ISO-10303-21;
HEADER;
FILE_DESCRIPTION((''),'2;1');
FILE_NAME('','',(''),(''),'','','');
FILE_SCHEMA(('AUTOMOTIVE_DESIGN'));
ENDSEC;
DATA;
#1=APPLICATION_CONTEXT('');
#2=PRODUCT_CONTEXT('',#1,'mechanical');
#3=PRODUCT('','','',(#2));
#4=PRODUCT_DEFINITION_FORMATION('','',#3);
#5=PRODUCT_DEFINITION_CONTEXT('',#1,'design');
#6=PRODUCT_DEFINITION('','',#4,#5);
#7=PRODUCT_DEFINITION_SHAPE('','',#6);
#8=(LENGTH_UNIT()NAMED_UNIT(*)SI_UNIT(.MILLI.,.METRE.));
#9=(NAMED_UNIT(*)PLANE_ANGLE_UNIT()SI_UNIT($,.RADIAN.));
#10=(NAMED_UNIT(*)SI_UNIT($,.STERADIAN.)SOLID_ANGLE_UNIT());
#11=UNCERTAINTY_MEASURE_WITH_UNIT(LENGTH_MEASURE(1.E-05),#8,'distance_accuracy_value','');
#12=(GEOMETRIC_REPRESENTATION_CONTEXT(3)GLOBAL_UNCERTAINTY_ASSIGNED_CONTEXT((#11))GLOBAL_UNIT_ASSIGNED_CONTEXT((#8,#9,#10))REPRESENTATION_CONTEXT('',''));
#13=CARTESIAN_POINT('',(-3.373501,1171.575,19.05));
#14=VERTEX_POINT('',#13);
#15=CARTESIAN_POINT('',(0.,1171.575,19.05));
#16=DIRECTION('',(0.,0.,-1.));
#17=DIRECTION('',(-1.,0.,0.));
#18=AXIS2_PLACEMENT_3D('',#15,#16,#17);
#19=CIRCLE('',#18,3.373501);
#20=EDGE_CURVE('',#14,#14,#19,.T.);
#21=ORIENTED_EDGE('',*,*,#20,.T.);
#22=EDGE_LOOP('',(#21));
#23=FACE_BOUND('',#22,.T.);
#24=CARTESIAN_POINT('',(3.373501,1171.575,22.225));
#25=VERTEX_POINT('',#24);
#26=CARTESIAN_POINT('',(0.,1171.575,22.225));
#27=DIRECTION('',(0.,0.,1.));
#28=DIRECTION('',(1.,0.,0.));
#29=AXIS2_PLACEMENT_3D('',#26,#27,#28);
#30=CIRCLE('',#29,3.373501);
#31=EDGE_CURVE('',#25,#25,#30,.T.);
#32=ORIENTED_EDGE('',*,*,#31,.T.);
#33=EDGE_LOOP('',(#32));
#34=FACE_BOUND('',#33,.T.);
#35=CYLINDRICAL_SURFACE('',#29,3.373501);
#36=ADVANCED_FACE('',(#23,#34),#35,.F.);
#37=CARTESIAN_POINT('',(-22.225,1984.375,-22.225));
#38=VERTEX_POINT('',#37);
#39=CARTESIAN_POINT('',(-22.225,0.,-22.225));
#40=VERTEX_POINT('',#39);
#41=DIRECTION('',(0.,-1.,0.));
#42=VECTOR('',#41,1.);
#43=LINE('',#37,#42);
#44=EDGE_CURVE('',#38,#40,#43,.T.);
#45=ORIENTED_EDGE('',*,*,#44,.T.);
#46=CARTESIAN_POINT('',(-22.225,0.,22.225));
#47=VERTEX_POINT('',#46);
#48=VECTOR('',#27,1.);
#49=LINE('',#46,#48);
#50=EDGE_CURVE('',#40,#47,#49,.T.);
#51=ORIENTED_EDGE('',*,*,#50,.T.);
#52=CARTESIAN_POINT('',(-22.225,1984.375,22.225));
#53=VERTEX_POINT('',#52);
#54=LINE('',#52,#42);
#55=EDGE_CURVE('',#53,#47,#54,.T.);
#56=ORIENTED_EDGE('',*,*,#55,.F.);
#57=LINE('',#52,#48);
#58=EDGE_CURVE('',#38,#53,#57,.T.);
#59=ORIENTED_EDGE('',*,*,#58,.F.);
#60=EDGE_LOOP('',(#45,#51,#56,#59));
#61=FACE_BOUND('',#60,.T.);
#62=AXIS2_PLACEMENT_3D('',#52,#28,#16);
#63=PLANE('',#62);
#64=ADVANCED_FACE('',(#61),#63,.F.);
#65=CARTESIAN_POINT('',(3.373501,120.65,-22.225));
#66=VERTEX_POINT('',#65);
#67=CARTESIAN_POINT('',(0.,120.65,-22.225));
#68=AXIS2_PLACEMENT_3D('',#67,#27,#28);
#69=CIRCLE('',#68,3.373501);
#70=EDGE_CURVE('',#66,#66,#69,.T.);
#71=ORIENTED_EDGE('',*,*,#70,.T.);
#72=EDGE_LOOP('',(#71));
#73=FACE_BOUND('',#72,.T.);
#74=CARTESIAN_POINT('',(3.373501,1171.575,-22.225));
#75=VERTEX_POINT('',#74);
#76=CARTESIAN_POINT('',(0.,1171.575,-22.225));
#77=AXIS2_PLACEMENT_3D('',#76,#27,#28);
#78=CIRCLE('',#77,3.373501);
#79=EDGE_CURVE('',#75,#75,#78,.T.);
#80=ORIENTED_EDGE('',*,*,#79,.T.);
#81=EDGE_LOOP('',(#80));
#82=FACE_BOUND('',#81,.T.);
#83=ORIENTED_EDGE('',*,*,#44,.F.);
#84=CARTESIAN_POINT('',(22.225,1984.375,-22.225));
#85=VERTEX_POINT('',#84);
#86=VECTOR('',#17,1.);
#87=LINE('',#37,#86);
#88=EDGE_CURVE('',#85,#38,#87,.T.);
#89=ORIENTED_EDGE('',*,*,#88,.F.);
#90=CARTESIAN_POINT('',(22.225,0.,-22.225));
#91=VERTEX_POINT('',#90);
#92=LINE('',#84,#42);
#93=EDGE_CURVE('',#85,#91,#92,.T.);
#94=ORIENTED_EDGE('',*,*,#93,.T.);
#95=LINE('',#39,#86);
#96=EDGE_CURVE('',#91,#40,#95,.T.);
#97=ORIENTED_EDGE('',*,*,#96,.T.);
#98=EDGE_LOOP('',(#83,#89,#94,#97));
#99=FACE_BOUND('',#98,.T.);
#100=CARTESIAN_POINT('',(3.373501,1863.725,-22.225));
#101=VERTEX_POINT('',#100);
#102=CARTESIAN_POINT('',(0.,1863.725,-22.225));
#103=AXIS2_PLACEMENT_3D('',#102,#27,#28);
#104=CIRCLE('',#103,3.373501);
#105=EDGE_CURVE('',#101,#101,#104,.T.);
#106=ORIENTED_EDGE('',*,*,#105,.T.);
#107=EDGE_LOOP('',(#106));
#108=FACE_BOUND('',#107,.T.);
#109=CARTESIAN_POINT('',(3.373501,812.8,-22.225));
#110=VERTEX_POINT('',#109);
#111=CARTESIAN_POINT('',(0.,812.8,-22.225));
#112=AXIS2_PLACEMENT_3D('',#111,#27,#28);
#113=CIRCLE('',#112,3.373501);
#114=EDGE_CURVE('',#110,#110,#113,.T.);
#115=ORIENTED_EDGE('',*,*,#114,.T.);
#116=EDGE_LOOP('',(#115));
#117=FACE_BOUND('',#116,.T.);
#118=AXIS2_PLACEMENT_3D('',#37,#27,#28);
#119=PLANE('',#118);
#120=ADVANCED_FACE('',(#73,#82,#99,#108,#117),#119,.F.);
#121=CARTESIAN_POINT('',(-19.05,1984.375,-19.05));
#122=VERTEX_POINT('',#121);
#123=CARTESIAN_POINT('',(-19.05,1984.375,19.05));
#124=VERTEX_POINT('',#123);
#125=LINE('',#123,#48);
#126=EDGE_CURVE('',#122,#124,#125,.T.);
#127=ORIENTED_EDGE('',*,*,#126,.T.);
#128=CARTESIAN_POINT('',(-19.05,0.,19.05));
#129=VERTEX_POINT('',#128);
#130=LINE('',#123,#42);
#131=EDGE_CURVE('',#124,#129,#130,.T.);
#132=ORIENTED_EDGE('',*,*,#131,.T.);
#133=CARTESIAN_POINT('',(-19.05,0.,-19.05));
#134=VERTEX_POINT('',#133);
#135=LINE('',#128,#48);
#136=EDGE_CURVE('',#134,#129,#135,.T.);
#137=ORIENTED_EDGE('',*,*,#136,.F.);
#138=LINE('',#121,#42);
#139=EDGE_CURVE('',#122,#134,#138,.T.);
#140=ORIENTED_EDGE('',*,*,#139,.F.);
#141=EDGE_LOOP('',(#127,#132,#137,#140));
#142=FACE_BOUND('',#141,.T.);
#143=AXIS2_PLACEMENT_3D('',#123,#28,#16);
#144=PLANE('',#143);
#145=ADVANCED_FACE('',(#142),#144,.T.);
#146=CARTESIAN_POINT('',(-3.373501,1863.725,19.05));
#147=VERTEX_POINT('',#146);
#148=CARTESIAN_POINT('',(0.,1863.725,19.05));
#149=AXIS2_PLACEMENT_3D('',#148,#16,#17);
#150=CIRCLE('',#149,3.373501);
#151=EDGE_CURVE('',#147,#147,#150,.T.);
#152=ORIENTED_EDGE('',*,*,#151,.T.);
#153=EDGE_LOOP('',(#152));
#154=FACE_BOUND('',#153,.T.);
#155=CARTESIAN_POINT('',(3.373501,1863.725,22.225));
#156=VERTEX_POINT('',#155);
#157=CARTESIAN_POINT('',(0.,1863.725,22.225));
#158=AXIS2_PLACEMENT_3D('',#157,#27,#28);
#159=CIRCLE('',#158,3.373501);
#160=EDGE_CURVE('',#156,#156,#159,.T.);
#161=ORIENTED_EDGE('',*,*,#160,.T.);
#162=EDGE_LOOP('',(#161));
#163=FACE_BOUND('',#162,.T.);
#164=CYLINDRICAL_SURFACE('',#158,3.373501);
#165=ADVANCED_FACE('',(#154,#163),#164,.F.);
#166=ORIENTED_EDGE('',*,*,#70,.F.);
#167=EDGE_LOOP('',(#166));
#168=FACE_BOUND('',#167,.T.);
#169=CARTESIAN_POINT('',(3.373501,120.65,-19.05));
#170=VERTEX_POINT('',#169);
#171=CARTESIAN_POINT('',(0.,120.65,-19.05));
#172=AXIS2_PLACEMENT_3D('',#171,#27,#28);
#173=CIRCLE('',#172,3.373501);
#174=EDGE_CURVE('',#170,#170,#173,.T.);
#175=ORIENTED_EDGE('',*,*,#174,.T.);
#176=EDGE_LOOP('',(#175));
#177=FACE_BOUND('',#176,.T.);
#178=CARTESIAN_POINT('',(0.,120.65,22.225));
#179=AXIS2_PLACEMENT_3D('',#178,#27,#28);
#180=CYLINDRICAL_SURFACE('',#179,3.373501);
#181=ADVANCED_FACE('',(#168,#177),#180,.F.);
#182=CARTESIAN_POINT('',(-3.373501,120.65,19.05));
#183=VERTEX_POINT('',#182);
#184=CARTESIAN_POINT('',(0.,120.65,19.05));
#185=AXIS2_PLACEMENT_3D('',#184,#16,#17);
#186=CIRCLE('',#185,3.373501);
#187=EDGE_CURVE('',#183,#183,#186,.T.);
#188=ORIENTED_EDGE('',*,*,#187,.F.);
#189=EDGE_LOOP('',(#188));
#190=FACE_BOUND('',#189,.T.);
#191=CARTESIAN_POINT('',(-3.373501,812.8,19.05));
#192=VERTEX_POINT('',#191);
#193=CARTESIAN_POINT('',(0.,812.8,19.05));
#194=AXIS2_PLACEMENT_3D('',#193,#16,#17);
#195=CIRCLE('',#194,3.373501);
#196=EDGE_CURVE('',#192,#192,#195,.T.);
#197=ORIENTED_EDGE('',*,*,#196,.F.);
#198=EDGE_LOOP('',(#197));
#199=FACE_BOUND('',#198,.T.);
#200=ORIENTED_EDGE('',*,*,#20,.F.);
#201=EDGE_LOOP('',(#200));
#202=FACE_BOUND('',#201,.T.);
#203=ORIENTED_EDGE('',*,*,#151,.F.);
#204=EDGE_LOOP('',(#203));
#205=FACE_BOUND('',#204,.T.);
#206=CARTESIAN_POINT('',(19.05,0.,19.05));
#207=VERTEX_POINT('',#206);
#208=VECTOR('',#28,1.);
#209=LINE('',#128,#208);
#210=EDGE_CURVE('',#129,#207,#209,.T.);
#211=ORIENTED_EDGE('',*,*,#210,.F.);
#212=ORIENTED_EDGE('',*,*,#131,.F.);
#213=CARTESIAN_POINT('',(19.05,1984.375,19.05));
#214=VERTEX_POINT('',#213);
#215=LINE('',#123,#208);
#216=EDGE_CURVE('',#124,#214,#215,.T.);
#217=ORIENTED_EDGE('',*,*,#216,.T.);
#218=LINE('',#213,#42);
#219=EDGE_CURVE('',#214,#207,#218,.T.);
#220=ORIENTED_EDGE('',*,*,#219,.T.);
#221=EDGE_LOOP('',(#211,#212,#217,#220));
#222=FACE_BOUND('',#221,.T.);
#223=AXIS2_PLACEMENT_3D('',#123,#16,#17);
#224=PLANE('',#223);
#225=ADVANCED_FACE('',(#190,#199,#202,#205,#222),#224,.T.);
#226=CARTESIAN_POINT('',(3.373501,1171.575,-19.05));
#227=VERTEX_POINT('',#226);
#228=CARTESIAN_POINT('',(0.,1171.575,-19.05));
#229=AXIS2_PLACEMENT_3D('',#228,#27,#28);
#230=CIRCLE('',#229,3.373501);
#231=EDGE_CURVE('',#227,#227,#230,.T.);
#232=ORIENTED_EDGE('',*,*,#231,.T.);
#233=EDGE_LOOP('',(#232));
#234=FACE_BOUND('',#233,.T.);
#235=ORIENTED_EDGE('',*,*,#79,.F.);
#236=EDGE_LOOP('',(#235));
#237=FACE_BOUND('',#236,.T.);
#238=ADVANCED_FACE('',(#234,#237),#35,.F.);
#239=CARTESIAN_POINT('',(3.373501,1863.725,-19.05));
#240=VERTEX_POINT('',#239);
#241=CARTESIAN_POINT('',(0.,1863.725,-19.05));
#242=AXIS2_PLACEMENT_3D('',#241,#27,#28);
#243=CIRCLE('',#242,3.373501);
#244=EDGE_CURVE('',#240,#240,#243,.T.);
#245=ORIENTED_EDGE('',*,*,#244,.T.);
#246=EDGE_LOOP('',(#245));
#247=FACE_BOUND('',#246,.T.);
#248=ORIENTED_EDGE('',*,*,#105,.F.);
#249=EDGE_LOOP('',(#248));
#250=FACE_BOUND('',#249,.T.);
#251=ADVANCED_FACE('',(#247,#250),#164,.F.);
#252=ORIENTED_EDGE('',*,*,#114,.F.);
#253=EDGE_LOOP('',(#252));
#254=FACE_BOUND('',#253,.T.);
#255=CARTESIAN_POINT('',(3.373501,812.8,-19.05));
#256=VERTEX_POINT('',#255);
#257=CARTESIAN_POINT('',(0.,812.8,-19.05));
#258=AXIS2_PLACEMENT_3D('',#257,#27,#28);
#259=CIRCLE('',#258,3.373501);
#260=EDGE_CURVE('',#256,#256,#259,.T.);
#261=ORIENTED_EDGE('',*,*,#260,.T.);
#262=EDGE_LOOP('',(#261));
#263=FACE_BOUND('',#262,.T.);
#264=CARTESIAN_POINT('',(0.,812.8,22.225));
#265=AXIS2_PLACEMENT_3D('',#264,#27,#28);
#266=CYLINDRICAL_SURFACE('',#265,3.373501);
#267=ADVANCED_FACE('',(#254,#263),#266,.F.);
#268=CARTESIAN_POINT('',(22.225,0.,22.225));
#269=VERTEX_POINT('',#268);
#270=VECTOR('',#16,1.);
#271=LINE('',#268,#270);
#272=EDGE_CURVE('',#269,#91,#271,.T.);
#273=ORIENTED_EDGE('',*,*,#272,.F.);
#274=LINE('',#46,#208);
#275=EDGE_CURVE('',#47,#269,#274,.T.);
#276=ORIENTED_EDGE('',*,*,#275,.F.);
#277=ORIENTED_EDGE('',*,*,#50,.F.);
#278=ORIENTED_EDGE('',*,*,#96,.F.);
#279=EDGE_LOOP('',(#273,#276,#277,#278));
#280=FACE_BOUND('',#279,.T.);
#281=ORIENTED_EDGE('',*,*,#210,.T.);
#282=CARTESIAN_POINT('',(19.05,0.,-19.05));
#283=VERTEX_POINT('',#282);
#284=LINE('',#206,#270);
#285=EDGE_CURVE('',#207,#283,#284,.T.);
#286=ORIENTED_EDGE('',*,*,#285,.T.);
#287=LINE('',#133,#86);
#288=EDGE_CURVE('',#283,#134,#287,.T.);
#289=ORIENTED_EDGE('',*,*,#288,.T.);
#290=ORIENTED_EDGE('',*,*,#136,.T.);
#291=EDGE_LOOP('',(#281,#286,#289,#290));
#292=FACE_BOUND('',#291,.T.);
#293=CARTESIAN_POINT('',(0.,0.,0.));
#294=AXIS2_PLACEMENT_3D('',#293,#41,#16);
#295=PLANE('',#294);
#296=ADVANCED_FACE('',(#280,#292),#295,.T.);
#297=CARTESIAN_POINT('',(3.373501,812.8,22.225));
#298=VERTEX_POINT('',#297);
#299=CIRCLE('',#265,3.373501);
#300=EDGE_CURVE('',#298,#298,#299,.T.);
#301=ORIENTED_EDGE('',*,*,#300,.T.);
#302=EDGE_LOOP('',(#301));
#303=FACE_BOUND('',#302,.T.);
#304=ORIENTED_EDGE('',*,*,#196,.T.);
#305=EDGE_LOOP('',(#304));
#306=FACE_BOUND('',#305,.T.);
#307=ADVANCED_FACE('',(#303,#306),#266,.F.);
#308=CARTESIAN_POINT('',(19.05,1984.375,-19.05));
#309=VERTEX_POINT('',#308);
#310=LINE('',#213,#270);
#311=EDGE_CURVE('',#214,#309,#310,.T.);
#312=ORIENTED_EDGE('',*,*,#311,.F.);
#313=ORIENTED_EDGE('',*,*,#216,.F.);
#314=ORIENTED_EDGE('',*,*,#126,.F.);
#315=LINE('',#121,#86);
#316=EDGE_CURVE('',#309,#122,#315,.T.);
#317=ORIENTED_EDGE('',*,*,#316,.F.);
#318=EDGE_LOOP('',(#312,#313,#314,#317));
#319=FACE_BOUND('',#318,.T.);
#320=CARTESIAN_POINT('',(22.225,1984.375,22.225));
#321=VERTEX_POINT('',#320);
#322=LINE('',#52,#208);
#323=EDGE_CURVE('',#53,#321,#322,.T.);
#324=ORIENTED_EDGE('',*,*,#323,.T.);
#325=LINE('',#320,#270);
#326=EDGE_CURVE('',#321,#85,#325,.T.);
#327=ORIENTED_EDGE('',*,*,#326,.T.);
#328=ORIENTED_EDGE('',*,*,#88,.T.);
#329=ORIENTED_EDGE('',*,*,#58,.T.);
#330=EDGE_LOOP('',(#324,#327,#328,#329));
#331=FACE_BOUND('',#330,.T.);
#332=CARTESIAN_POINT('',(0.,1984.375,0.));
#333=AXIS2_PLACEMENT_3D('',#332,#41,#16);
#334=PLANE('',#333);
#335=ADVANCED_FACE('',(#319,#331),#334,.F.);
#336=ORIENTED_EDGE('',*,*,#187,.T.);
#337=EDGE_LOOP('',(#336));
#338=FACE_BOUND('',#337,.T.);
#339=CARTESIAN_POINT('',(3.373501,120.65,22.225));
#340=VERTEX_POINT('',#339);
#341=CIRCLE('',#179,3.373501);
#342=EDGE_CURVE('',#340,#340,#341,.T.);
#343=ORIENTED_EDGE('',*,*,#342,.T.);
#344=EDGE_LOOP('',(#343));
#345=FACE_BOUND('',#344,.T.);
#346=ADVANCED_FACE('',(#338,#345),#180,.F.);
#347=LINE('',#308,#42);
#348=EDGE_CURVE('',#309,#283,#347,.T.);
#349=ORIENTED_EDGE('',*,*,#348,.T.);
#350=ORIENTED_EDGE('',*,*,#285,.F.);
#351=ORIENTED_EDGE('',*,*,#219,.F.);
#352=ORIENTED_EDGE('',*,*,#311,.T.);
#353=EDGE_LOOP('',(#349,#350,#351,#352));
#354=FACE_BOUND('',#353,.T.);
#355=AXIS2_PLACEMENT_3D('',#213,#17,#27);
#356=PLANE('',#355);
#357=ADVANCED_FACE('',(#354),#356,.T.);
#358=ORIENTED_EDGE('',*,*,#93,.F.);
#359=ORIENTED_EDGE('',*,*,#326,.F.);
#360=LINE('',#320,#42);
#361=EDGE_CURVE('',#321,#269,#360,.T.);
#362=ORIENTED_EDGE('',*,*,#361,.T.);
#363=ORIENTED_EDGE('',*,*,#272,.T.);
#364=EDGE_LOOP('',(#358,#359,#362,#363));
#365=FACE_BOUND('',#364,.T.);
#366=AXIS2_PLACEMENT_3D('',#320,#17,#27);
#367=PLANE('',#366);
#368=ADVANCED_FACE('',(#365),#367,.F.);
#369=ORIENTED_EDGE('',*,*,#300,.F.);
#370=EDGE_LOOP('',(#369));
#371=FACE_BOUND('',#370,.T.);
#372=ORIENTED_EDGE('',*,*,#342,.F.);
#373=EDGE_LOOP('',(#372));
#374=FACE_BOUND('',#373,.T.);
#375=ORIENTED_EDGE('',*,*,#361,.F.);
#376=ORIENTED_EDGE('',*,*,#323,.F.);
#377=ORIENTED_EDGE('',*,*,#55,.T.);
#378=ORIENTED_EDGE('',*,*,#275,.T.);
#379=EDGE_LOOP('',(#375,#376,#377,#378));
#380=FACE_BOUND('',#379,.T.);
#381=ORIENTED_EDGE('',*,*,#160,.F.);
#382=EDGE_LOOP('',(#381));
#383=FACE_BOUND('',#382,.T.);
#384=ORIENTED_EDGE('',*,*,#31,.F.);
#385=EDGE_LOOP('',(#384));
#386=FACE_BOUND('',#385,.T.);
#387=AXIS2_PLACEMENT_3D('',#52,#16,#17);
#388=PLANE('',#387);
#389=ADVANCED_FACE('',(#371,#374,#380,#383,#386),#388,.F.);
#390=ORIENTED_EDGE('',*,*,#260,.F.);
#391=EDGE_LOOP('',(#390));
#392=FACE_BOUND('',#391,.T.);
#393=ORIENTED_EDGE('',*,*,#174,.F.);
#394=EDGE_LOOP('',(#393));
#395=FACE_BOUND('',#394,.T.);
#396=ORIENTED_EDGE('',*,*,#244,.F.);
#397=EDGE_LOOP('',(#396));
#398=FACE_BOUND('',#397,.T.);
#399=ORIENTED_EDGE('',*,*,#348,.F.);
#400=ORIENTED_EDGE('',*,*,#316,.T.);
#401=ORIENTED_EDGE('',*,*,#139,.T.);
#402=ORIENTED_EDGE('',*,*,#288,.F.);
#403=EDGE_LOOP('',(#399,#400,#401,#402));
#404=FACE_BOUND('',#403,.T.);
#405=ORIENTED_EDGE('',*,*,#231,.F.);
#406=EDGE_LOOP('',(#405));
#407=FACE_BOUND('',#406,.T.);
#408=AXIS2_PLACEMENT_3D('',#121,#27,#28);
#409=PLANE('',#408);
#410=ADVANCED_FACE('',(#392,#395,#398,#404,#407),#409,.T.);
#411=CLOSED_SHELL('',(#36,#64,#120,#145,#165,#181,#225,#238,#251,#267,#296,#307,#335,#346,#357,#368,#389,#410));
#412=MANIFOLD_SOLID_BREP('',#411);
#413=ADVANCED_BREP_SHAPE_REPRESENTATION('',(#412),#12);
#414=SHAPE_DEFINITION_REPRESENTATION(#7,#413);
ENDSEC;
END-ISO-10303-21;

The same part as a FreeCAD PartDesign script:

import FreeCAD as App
import Part
import Sketcher
Q = App.Units.Quantity


def add_polygon(sketch, points):
    """Adds a closed chain of lines whose ends are joined by coincident constraints."""
    first, n = sketch.GeometryCount, len(points)
    for a, b in zip(points, points[1:] + points[:1]):
        sketch.addGeometry(Part.LineSegment(App.Vector(*a, 0), App.Vector(*b, 0)), False)
    for i in range(n):
        sketch.addConstraint(Sketcher.Constraint("Coincident", first + i, 2, first + (i + 1) % n, 1))

doc = App.newDocument("Part")
body = doc.addObject("PartDesign::Body", "Body")

# Sketch on XZ plane
sketch1 = body.newObject("Sketcher::SketchObject", "Sketch")
sketch1.AttachmentSupport = (doc.getObject("XZ_Plane"), [""])
sketch1.MapMode = "FlatFace"
add_polygon(sketch1, [(-22.225, -22.225), (-22.225, 22.225), (22.225, 22.225), (22.225, -22.225)])  # lines 0-3
add_polygon(sketch1, [(19.05, 19.05), (-19.05, 19.05), (-19.05, -19.05), (19.05, -19.05)])  # lines 4-7
sketch1.addConstraint([
    Sketcher.Constraint("Vertical", 0),
    Sketcher.Constraint("Horizontal", 1),
    Sketcher.Constraint("Vertical", 2),
    Sketcher.Constraint("Horizontal", 3),
    Sketcher.Constraint("Horizontal", 4),
    Sketcher.Constraint("Vertical", 5),
    Sketcher.Constraint("Horizontal", 6),
    Sketcher.Constraint("Vertical", 7),
    Sketcher.Constraint("Symmetric", 0, 2, 2, 2, -1, 1),
    Sketcher.Constraint("Symmetric", 4, 2, 6, 2, -1, 1),
    Sketcher.Constraint("Equal", 3, 0),
    Sketcher.Constraint("Equal", 6, 5),
    Sketcher.Constraint("DistanceX", 4, 2, 4, 1, Q("1.5 in")),
    Sketcher.Constraint("DistanceX", 1, 1, 1, 2, Q("1.75 in")),
])
pad1 = body.newObject("PartDesign::Pad", "Pad")
pad1.Profile = sketch1
pad1.Length = Q("78.125 in")
pad1.Reversed = True

# Sketch on XY plane
sketch2 = body.newObject("Sketcher::SketchObject", "Sketch001")
sketch2.AttachmentSupport = (doc.getObject("XY_Plane"), [""])
sketch2.MapMode = "FlatFace"
sketch2.AttachmentOffset = App.Placement(App.Vector(0, 0, 0.875 * 25.4), App.Rotation())
sketch2.addGeometry([
    Part.Circle(App.Vector(0, 812.8, 0), App.Vector(0, 0, 1), 3.373501),
    Part.Circle(App.Vector(0, 120.65, 0), App.Vector(0, 0, 1), 3.373501),
    Part.Circle(App.Vector(0, 1171.575, 0), App.Vector(0, 0, 1), 3.373501),
    Part.Circle(App.Vector(0, 1863.725, 0), App.Vector(0, 0, 1), 3.373501),
], False)
sketch2.addConstraint([
    Sketcher.Constraint("Equal", 0, 1),
    Sketcher.Constraint("Equal", 1, 2),
    Sketcher.Constraint("Equal", 2, 3),
    Sketcher.Constraint("PointOnObject", 0, 3, -2),
    Sketcher.Constraint("PointOnObject", 1, 3, -2),
    Sketcher.Constraint("PointOnObject", 2, 3, -2),
    Sketcher.Constraint("PointOnObject", 3, 3, -2),
    Sketcher.Constraint("DistanceY", -1, 1, 0, 3, Q("32 in")),
    Sketcher.Constraint("DistanceY", -1, 1, 1, 3, Q("4.75 in")),
    Sketcher.Constraint("DistanceY", 2, 3, 3, 3, Q("27.25 in")),
    Sketcher.Constraint("DistanceY", -1, 1, 2, 3, Q("46.125 in")),
    Sketcher.Constraint("Diameter", 0, Q("6.747002 mm")),
])
doc.recompute()
hole = body.newObject("PartDesign::Hole", "Hole")
hole.Profile = sketch2
hole.ThreadType = "None"
hole.Diameter = 6.747002
hole.DepthType = "ThroughAll"

doc.recompute()
